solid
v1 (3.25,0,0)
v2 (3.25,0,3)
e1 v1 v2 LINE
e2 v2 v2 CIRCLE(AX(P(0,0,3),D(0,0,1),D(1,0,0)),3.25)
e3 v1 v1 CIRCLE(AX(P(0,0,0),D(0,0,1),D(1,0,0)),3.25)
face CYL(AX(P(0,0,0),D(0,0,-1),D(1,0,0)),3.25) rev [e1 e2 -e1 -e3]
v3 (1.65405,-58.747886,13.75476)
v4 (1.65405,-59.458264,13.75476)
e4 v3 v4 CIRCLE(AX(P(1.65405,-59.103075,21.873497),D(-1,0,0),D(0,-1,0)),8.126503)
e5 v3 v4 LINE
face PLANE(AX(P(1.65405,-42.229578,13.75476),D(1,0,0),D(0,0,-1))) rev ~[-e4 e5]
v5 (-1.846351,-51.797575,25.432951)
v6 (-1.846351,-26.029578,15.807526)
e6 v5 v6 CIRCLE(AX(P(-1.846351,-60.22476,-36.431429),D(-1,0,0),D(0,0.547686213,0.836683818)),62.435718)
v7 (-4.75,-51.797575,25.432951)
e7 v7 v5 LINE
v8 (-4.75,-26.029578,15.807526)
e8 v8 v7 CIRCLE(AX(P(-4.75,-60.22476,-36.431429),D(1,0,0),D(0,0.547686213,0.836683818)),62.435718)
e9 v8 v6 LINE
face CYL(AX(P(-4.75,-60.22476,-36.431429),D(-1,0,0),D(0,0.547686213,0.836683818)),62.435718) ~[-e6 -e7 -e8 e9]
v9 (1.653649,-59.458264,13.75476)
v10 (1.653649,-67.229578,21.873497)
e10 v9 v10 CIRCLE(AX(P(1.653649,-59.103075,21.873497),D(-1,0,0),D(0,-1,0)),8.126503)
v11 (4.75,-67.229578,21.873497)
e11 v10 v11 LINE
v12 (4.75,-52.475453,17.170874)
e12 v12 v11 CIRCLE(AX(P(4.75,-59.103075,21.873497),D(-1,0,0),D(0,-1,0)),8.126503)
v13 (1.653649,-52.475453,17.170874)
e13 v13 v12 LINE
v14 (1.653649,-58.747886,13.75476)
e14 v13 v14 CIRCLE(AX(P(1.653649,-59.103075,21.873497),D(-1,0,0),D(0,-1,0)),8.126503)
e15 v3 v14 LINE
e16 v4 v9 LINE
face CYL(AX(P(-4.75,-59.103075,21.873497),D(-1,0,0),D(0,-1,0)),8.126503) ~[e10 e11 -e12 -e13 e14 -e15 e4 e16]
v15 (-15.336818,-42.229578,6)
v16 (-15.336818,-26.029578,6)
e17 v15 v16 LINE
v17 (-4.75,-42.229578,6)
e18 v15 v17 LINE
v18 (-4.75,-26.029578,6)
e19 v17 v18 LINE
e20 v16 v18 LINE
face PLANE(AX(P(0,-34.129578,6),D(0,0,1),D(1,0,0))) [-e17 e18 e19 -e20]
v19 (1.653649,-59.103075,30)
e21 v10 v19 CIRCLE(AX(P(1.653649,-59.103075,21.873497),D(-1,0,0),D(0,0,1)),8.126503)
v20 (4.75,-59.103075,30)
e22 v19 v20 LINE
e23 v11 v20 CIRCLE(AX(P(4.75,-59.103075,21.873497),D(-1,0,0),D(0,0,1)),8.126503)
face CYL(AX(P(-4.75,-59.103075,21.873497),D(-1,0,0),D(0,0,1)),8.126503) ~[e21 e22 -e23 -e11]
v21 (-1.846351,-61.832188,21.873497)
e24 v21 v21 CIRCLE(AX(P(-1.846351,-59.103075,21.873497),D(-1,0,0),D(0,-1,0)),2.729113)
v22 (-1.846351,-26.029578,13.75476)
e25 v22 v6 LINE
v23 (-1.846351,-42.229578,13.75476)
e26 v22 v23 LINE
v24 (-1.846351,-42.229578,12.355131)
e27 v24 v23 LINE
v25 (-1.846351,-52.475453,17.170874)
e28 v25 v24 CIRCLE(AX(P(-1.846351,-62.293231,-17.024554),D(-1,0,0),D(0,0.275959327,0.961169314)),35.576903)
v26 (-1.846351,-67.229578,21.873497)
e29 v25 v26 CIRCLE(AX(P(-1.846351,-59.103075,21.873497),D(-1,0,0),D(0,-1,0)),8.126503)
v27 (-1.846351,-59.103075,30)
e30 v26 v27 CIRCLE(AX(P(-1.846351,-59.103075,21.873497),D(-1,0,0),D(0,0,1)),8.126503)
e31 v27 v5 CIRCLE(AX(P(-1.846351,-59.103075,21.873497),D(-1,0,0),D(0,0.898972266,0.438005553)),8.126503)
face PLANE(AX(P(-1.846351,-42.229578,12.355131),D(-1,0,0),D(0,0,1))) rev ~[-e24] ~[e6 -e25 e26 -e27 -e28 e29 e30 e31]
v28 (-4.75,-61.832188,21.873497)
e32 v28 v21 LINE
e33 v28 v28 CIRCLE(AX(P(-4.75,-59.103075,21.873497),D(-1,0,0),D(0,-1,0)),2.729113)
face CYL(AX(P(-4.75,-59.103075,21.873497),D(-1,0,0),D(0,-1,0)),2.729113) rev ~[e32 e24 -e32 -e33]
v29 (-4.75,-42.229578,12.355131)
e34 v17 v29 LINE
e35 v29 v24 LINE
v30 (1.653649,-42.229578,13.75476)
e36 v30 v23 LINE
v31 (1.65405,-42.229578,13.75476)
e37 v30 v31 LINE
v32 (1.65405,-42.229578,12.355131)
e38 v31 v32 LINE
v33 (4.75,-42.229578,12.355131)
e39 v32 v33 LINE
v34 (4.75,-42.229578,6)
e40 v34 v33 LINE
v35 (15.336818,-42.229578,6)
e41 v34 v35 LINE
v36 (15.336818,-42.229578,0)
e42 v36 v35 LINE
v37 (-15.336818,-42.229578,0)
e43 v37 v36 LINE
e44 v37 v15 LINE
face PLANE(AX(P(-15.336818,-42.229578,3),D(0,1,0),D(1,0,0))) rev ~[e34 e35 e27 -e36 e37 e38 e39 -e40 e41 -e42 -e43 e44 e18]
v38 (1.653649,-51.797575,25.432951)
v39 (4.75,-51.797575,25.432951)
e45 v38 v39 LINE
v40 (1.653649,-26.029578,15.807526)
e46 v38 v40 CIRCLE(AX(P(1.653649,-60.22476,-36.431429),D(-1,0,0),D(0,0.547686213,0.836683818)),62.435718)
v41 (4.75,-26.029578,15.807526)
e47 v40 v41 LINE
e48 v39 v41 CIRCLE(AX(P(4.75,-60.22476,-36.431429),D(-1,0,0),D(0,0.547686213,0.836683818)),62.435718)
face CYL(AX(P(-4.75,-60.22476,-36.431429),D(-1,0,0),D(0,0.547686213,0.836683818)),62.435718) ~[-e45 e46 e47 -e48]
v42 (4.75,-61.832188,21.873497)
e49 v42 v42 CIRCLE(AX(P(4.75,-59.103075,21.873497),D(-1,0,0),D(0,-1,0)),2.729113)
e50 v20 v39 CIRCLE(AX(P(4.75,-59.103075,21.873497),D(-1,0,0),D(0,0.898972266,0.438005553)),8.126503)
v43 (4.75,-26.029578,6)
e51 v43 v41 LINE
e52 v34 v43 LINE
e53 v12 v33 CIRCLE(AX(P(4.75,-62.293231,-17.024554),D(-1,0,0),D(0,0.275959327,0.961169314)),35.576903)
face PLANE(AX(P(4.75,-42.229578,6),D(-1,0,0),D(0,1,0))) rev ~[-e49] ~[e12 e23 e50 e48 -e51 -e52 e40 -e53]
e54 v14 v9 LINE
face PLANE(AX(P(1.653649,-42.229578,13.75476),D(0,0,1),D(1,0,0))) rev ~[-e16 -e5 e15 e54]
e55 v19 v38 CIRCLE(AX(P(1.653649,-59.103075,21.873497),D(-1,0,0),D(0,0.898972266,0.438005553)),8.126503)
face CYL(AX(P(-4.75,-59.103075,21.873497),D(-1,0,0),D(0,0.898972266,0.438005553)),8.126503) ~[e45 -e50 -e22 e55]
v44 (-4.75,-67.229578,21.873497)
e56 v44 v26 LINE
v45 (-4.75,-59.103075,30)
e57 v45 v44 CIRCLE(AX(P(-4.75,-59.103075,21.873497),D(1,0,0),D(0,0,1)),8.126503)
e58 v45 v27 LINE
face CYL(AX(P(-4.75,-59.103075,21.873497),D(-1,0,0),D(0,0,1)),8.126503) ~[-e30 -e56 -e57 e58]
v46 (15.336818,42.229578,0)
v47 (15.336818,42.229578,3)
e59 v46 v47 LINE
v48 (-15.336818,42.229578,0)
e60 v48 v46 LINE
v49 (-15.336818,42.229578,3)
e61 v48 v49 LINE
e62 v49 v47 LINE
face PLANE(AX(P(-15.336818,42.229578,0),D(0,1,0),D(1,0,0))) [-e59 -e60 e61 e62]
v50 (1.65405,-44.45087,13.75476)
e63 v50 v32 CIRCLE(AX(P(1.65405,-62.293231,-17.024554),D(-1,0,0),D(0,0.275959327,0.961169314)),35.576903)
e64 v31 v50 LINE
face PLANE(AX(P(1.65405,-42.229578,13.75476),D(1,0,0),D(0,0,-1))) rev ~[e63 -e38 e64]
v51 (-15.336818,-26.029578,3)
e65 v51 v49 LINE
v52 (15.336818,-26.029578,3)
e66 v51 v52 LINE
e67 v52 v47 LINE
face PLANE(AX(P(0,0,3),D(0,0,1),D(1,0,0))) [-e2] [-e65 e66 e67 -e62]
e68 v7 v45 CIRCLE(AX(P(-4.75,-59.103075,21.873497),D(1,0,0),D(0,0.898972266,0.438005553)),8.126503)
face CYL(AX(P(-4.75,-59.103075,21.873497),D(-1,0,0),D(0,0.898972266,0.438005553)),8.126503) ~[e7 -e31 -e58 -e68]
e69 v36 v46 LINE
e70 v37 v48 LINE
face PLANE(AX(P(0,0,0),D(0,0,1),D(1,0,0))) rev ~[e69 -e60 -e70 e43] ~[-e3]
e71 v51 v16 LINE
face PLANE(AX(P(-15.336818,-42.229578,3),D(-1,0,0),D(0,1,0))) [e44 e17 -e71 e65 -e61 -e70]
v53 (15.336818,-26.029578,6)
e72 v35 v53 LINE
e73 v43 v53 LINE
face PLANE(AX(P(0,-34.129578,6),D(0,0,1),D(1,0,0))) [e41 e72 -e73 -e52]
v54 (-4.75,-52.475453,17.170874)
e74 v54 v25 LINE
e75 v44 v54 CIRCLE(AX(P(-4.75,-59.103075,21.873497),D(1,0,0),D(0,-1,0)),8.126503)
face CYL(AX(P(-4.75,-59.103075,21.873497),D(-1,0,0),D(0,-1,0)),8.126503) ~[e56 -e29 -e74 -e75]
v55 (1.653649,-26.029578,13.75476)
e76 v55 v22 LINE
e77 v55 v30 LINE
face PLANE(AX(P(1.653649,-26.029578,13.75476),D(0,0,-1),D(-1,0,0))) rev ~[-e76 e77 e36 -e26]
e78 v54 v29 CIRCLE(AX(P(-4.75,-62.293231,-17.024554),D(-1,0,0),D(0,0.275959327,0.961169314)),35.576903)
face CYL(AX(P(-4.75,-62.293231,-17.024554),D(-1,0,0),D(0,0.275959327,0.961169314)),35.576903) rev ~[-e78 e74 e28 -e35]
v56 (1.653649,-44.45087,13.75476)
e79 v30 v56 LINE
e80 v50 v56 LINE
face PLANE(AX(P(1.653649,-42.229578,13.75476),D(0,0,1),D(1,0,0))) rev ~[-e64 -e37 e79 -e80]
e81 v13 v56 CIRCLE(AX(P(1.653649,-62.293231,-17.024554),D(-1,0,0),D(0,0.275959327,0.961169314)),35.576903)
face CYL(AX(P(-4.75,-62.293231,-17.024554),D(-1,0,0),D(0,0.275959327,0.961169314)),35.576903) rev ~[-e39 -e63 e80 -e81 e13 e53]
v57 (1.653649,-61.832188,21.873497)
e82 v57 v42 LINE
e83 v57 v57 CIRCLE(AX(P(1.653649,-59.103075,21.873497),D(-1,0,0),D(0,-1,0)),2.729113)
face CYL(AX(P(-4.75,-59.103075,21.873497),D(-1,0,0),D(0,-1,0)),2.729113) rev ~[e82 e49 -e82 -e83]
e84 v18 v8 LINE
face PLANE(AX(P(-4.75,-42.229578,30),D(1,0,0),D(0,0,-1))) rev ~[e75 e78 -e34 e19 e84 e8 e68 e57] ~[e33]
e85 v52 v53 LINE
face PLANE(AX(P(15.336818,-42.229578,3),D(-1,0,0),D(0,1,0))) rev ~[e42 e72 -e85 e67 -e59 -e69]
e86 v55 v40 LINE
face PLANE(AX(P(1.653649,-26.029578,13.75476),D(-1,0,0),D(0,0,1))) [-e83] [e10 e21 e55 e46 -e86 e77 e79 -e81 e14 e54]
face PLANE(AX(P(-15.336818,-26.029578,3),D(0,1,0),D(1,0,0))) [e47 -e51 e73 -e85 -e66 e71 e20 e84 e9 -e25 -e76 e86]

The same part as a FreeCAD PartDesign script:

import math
import FreeCAD as App
import Part
import Sketcher

V = App.Vector

doc = App.newDocument("Part")
body = doc.addObject("PartDesign::Body", "Body")

# Sketch on XY plane
sketch1 = body.newObject("Sketcher::SketchObject", "Sketch")
sketch1.AttachmentSupport = (doc.getObject("XY_Plane"), [""])
sketch1.MapMode = "FlatFace"
sketch1.addGeometry([
    Part.LineSegment(V(-15.3, 42.2, 0), V(-15.3, -42.2, 0)),  # 0
    Part.LineSegment(V(-15.3, -42.2, 0), V(15.3, -42.2, 0)),  # 1
    Part.LineSegment(V(15.3, -42.2, 0), V(15.3, 42.2, 0)),  # 2
    Part.LineSegment(V(15.3, 42.2, 0), V(-15.3, 42.2, 0)),  # 3
    Part.Circle(V(0, 0, 0), V(0, 0, 1), 3.2),  # 4
], False)
sketch1.addConstraint([
    Sketcher.Constraint("Coincident", 0, 2, 1, 1),
    Sketcher.Constraint("Coincident", 1, 2, 2, 1),
    Sketcher.Constraint("Coincident", 2, 2, 3, 1),
    Sketcher.Constraint("Coincident", 3, 2, 0, 1),
    Sketcher.Constraint("Vertical", 0),
    Sketcher.Constraint("Horizontal", 1),
    Sketcher.Constraint("Vertical", 2),
    Sketcher.Constraint("Horizontal", 3),
    Sketcher.Constraint("Coincident", 4, 3, -1, 1),
    Sketcher.Constraint("Symmetric", 0, 2, 2, 2, -1, 1),
    Sketcher.Constraint("Diameter", 4, 6.5),
    Sketcher.Constraint("DistanceX", 1, 1, 1, 2, 30.673636),
    Sketcher.Constraint("DistanceY", 0, 2, 0, 1, 84.459156),
])
pad1 = body.newObject("PartDesign::Pad", "Pad")
pad1.Profile = sketch1
pad1.Length = 3

# Sketch on XY plane
sketch2 = body.newObject("Sketcher::SketchObject", "Sketch001")
sketch2.AttachmentSupport = (doc.getObject("XY_Plane"), [""])
sketch2.MapMode = "FlatFace"
sketch2.AttachmentOffset = App.Placement(V(0, 0, 3), App.Rotation())
sketch2.addGeometry([
    Part.LineSegment(V(-15, -26, 0), V(-15, -42, 0)),
    Part.LineSegment(V(-15, -42, 0), V(15, -42, 0)),
    Part.LineSegment(V(15, -42, 0), V(15, -26, 0)),
    Part.LineSegment(V(15, -26, 0), V(-15, -26, 0)),
], False)
sketch2.addConstraint([
    Sketcher.Constraint("Coincident", 0, 2, 1, 1),
    Sketcher.Constraint("Coincident", 1, 2, 2, 1),
    Sketcher.Constraint("Coincident", 2, 2, 3, 1),
    Sketcher.Constraint("Coincident", 3, 2, 0, 1),
    Sketcher.Constraint("Vertical", 0),
    Sketcher.Constraint("Horizontal", 1),
    Sketcher.Constraint("Vertical", 2),
    Sketcher.Constraint("Horizontal", 3),
    Sketcher.Constraint("DistanceY", 0, 2, 0, 1, 16.2),
    Sketcher.Constraint("DistanceX", 1, 1, 1, 2, 30.673636),
    Sketcher.Constraint("DistanceX", 0, 2, -1, 1, 15.336818),
    Sketcher.Constraint("DistanceY", 0, 2, -1, 1, 42.229578),
])
pad2 = body.newObject("PartDesign::Pad", "Pad001")
pad2.Profile = sketch2
pad2.Length = 3

# Sketch on XY plane
sketch3 = body.newObject("Sketcher::SketchObject", "Sketch002")
sketch3.AttachmentSupport = (doc.getObject("XY_Plane"), [""])
sketch3.MapMode = "FlatFace"
sketch3.AttachmentOffset = App.Placement(V(0, 0, 6), App.Rotation())
sketch3.addGeometry([
    Part.LineSegment(V(-5, -26, 0), V(-5, -42, 0)),
    Part.LineSegment(V(-5, -42, 0), V(5, -42, 0)),
    Part.LineSegment(V(5, -42, 0), V(5, -26, 0)),
    Part.LineSegment(V(5, -26, 0), V(-5, -26, 0)),
], False)
sketch3.addConstraint([
    Sketcher.Constraint("Coincident", 0, 2, 1, 1),
    Sketcher.Constraint("Coincident", 1, 2, 2, 1),
    Sketcher.Constraint("Coincident", 2, 2, 3, 1),
    Sketcher.Constraint("Coincident", 3, 2, 0, 1),
    Sketcher.Constraint("Vertical", 0),
    Sketcher.Constraint("Horizontal", 1),
    Sketcher.Constraint("Vertical", 2),
    Sketcher.Constraint("Horizontal", 3),
    Sketcher.Constraint("DistanceX", 1, 1, 1, 2, 9.5),
    Sketcher.Constraint("DistanceY", 0, 2, 0, 1, 16.2),
    Sketcher.Constraint("DistanceX", 0, 2, -1, 1, 4.75),
    Sketcher.Constraint("DistanceY", 0, 2, -1, 1, 42.229578),
])
pad3 = body.newObject("PartDesign::Pad", "Pad002")
pad3.Profile = sketch3
pad3.Length = 24

# Sketch on XZ plane
sketch4 = body.newObject("Sketcher::SketchObject", "Sketch003")
sketch4.AttachmentSupport = (doc.getObject("XZ_Plane"), [""])
sketch4.MapMode = "FlatFace"
sketch4.AttachmentOffset = App.Placement(V(0, 0, 26.029578), App.Rotation())
sketch4.addGeometry([
    Part.LineSegment(V(1.7, 30, 0), V(1.7, 13.8, 0)),
    Part.LineSegment(V(1.7, 13.8, 0), V(-1.8, 13.8, 0)),
    Part.LineSegment(V(-1.8, 13.8, 0), V(-1.8, 30, 0)),
    Part.LineSegment(V(-1.8, 30, 0), V(1.7, 30, 0)),
], False)
sketch4.addConstraint([
    Sketcher.Constraint("Coincident", 0, 2, 1, 1),
    Sketcher.Constraint("Coincident", 1, 2, 2, 1),
    Sketcher.Constraint("Coincident", 2, 2, 3, 1),
    Sketcher.Constraint("Coincident", 3, 2, 0, 1),
    Sketcher.Constraint("Vertical", 0),
    Sketcher.Constraint("Horizontal", 1),
    Sketcher.Constraint("Vertical", 2),
    Sketcher.Constraint("Horizontal", 3),
    Sketcher.Constraint("DistanceX", 1, 2, 1, 1, 3.5),
    Sketcher.Constraint("DistanceY", -1, 1, 2, 2, 30.0),
    Sketcher.Constraint("DistanceY", 0, 2, 0, 1, 16.24524),
    Sketcher.Constraint("DistanceX", -1, 1, 0, 2, 1.653649),
])
pocket1 = body.newObject("PartDesign::Pocket", "Pocket")
pocket1.Profile = sketch4
pocket1.Length = 18
pocket1.Reversed = True

# Sketch on XZ plane
sketch5 = body.newObject("Sketcher::SketchObject", "Sketch004")
sketch5.AttachmentSupport = (doc.getObject("XZ_Plane"), [""])
sketch5.MapMode = "FlatFace"
sketch5.AttachmentOffset = App.Placement(V(0, 0, 42.229578), App.Rotation())
sketch5.addGeometry([
    Part.LineSegment(V(-1.84635, 30, 0), V(-4.75, 30, 0)),  # 0
    Part.LineSegment(V(-4.75, 30, 0), V(-4.75, 12.35513, 0)),  # 1
    Part.LineSegment(V(-4.75, 12.35513, 0), V(-1.84635, 12.35513, 0)),  # 2
    Part.LineSegment(V(-1.84635, 12.35513, 0), V(-1.84635, 30, 0)),  # 3
    Part.LineSegment(V(4.75, 30, 0), V(1.65365, 30, 0)),  # 4
    Part.LineSegment(V(1.65365, 30, 0), V(1.65365, 13.75476, 0)),  # 5
    Part.LineSegment(V(1.65365, 13.75476, 0), V(1.65405, 13.75476, 0)),  # 6
    Part.LineSegment(V(1.65405, 13.75476, 0), V(1.65405, 12.35513, 0)),  # 7
    Part.LineSegment(V(1.65405, 12.35513, 0), V(4.75, 12.35513, 0)),  # 8
    Part.LineSegment(V(4.75, 12.35513, 0), V(4.75, 30, 0)),  # 9
], False)
sketch5.addConstraint([
    Sketcher.Constraint("Coincident", 0, 2, 1, 1),
    Sketcher.Constraint("Coincident", 1, 2, 2, 1),
    Sketcher.Constraint("Coincident", 2, 2, 3, 1),
    Sketcher.Constraint("Coincident", 3, 2, 0, 1),
    Sketcher.Constraint("Coincident", 4, 2, 5, 1),
    Sketcher.Constraint("Coincident", 5, 2, 6, 1),
    Sketcher.Constraint("Coincident", 6, 2, 7, 1),
    Sketcher.Constraint("Coincident", 7, 2, 8, 1),
    Sketcher.Constraint("Coincident", 8, 2, 9, 1),
    Sketcher.Constraint("Coincident", 9, 2, 4, 1),
    Sketcher.Constraint("Horizontal", 0),
    Sketcher.Constraint("Vertical", 1),
    Sketcher.Constraint("Horizontal", 2),
    Sketcher.Constraint("Vertical", 3),
    Sketcher.Constraint("Horizontal", 4),
    Sketcher.Constraint("Vertical", 5),
    Sketcher.Constraint("Horizontal", 6),
    Sketcher.Constraint("Vertical", 7),
    Sketcher.Constraint("Horizontal", 8),
    Sketcher.Constraint("Vertical", 9),
    Sketcher.Constraint("Symmetric", 1, 2, 8, 2, -2),
    Sketcher.Constraint("Horizontal", 3, 2, 4, 2),
    Sketcher.Constraint("DistanceY", -1, 1, 0, 2, 30.0),
    Sketcher.Constraint("DistanceX", 3, 2, 4, 2, 3.5),
    Sketcher.Constraint("DistanceX", 1, 2, 8, 2, 9.5),
    Sketcher.Constraint("DistanceX", 6, 1, 6, 2, 0.000402),
    Sketcher.Constraint("DistanceX", 0, 2, 0, 1, 2.903649),
    Sketcher.Constraint("DistanceY", 1, 2, 1, 1, 17.644869),
    Sketcher.Constraint("DistanceY", 5, 2, 5, 1, 16.24524),
])
pad4 = body.newObject("PartDesign::Pad", "Pad003")
pad4.Profile = sketch5
pad4.Length = 25

# Sketch on YZ plane
sketch6 = body.newObject("Sketcher::SketchObject", "Sketch005")
sketch6.AttachmentSupport = (doc.getObject("YZ_Plane"), [""])
sketch6.MapMode = "FlatFace"
sketch6.AttachmentOffset = App.Placement(V(0, 0, -4.75), App.Rotation())
sketch6.addGeometry([
    Part.LineSegment(V(-67.2, 30, 0), V(-59.1, 30, 0)),  # 0
    Part.ArcOfCircle(Part.Circle(V(-59.1, 21.9, 0), V(0, 0, 1), 8.1), math.radians(90), math.radians(180)),  # 1
    Part.LineSegment(V(-67.2, 21.9, 0), V(-67.2, 30, 0)),  # 2
    Part.LineSegment(V(-67.2, 12.4, 0), V(-67.2, 21.9, 0)),  # 3
    Part.ArcOfCircle(Part.Circle(V(-59.1, 21.9, 0), V(0, 0, 1), 8.1), math.radians(180), math.radians(325)),  # 4
    Part.ArcOfCircle(Part.Circle(V(-62.3, -17, 0), V(0, 0, 1), 35.6), math.radians(55.67), math.radians(73.98)),  # 5
    Part.LineSegment(V(-42.2, 12.4, 0), V(-67.2, 12.4, 0)),  # 6
    Part.Circle(V(-59.1, 21.9, 0), V(0, 0, 1), 2.7),  # 7
    Part.LineSegment(V(-26, 30, 0), V(-26, 15.8, 0)),  # 8
    Part.ArcOfCircle(Part.Circle(V(-60.2, -36.4, 0), V(0, 0, 1), 62.4), math.radians(57), math.radians(82)),  # 9
    Part.ArcOfCircle(Part.Circle(V(-59.1, 21.9, 0), V(0, 0, 1), 8.1), math.radians(26), math.radians(90)),  # 10
    Part.LineSegment(V(-59.1, 30, 0), V(-26, 30, 0)),  # 11
], False)
sketch6.addConstraint([
    Sketcher.Constraint("Tangent", 0, 2, 1, 1),
    Sketcher.Constraint("Tangent", 1, 2, 2, 1),
    Sketcher.Constraint("Coincident", 2, 2, 0, 1),
    Sketcher.Constraint("Tangent", 3, 2, 4, 1),
    Sketcher.Constraint("Coincident", 4, 2, 5, 2),
    Sketcher.Constraint("Coincident", 5, 1, 6, 1),
    Sketcher.Constraint("Coincident", 6, 2, 3, 1),
    Sketcher.Constraint("Coincident", 8, 2, 9, 1),
    Sketcher.Constraint("Coincident", 9, 2, 10, 1),
    Sketcher.Constraint("Tangent", 10, 2, 11, 1),
    Sketcher.Constraint("Coincident", 11, 2, 8, 1),
    Sketcher.Constraint("Horizontal", 0),
    Sketcher.Constraint("Vertical", 2),
    Sketcher.Constraint("Vertical", 3),
    Sketcher.Constraint("Horizontal", 6),
    Sketcher.Constraint("Vertical", 8),
    Sketcher.Constraint("Horizontal", 11),
    Sketcher.Constraint("Coincident", 4, 3, 1, 3),
    Sketcher.Constraint("Coincident", 7, 3, 1, 3),
    Sketcher.Constraint("Coincident", 10, 3, 1, 3),
    Sketcher.Constraint("Equal", 1, 4),
    Sketcher.Constraint("Equal", 4, 10),
    Sketcher.Constraint("DistanceX", 6, 2, 6, 1, 25.0),
    Sketcher.Constraint("DistanceY", -1, 1, 0, 2, 30.0),
    Sketcher.Constraint("DistanceX", 5, 1, 8, 2, 16.2),
    Sketcher.Constraint("Radius", 9, 62.435718),
    Sketcher.Constraint("Diameter", 7, 5.458225),
    Sketcher.Constraint("Radius", 1, 8.126503),
    Sketcher.Constraint("Radius", 5, 35.576903),
    Sketcher.Constraint("DistanceX", 1, 3, 9, 2, 7.305501),
    Sketcher.Constraint("DistanceY", 3, 1, 3, 2, 9.518367),
    Sketcher.Constraint("DistanceY", 8, 2, 8, 1, 14.192474),
    Sketcher.Constraint("DistanceX", 5, 3, -1, 1, 62.293231),
    Sketcher.Constraint("DistanceX", 9, 3, -1, 1, 60.22476),
])
pocket2 = body.newObject("PartDesign::Pocket", "Pocket001")
pocket2.Profile = sketch6
pocket2.Type = "ThroughAll"
pocket2.Reversed = True

doc.recompute()
